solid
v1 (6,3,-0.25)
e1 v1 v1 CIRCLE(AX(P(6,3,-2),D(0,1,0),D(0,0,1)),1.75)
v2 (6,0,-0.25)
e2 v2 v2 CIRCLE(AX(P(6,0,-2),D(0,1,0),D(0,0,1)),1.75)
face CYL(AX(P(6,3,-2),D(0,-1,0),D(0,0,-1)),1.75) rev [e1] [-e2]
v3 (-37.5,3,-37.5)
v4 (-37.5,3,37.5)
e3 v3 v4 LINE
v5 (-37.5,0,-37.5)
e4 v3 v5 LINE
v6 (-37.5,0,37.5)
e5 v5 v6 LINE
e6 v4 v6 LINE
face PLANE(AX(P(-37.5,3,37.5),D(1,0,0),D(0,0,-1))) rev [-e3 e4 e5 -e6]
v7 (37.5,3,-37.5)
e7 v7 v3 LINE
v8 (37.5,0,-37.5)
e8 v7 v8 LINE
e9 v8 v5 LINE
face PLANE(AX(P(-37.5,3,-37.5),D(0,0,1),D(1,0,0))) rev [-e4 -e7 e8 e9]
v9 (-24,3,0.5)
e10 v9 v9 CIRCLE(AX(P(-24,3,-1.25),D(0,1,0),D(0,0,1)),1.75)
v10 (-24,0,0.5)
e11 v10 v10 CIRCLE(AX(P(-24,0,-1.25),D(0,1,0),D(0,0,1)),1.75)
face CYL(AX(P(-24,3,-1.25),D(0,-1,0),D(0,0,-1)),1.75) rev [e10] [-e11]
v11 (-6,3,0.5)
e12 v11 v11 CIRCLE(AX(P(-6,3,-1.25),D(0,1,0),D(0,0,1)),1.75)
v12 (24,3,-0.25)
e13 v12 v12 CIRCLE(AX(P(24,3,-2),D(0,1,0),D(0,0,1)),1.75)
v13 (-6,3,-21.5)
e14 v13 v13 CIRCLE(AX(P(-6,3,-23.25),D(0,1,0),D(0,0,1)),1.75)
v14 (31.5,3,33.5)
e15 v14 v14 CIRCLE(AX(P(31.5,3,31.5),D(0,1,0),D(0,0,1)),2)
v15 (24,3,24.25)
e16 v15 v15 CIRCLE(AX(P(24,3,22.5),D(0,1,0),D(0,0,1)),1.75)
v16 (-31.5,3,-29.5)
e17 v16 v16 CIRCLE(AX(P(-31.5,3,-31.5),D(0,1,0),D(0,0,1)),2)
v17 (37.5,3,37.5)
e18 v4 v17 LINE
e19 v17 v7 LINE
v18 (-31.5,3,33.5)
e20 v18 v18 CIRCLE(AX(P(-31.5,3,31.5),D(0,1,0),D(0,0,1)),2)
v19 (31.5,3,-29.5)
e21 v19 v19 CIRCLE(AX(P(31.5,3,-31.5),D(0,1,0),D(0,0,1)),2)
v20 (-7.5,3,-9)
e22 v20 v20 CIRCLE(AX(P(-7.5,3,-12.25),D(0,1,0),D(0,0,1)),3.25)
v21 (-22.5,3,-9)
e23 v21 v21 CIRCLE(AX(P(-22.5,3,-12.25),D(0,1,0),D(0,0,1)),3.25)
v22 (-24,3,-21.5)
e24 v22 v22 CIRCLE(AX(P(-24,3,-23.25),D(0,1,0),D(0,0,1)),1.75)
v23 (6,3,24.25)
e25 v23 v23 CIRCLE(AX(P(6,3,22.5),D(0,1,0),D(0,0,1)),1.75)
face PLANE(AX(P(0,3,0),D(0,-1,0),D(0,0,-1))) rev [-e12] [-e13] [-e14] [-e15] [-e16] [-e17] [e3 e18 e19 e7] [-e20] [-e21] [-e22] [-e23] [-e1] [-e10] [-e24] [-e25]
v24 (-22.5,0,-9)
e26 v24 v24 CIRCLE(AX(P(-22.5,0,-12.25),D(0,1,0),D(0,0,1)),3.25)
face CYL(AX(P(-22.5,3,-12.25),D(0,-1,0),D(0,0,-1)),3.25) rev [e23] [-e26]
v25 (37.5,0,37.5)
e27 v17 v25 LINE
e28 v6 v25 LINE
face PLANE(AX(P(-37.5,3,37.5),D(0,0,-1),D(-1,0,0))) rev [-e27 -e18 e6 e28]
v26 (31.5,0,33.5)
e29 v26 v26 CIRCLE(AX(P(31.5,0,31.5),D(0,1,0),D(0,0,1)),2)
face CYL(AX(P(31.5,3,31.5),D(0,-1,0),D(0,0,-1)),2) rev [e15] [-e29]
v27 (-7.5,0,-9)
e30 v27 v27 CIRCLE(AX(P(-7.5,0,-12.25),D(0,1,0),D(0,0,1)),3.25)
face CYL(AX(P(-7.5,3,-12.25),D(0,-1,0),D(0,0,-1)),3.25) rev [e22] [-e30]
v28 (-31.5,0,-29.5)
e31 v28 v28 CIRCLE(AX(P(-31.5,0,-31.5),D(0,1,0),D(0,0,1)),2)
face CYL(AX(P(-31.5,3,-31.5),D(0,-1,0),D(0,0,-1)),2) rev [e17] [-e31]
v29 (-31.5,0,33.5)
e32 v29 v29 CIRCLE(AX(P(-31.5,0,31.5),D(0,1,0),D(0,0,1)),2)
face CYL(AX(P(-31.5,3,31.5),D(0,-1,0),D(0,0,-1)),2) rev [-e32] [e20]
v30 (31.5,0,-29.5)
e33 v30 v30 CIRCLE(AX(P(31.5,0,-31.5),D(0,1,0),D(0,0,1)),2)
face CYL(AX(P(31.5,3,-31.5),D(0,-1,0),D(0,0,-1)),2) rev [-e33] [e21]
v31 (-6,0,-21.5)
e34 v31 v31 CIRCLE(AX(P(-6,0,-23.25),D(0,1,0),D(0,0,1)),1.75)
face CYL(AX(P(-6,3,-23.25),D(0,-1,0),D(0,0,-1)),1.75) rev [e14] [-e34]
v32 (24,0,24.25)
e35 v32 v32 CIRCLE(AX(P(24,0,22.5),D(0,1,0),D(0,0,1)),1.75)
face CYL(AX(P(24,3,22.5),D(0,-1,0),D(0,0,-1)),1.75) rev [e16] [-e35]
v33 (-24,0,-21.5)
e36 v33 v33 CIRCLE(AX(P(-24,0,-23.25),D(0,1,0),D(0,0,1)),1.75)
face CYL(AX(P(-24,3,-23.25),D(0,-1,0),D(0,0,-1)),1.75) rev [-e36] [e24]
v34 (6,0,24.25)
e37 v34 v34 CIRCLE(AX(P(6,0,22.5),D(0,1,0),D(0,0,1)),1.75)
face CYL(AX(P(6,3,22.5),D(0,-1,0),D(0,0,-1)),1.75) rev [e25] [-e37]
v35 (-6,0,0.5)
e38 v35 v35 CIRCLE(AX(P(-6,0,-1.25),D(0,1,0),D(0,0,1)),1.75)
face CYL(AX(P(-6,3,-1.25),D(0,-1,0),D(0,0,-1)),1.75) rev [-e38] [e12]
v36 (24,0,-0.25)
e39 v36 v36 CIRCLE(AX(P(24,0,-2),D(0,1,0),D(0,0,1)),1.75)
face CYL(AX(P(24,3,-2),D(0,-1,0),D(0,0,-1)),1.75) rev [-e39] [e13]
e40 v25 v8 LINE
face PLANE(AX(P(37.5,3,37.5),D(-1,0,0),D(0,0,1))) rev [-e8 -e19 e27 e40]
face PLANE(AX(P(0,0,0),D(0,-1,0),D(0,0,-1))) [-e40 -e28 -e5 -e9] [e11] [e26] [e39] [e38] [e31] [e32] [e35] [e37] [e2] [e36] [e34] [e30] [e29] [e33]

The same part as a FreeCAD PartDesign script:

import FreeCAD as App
import Part
import Sketcher

doc = App.newDocument("Part")
params = doc.addObject("Spreadsheet::Sheet", "Params")
for row, (alias, value) in enumerate([
    ("sketch1_diameter", "4 mm"),
    ("sketch1_diameter2", "3.5 mm"),
    ("sketch1_diameter3", "6.5 mm"),
    ("sketch1_width", "75 mm"),
    ("pad1_length", "3 mm"),
], start=1):
    params.set(f"A{row}", alias)
    params.set(f"B{row}", "=" + value)
    params.setAlias(f"B{row}", alias)

body = doc.addObject("PartDesign::Body", "Body")

sketch1 = body.newObject("Sketcher::SketchObject", "Sketch")
sketch1.AttachmentSupport = (doc.getObject("XZ_Plane"), [""])
sketch1.MapMode = "FlatFace"
sketch1.addGeometry([
    Part.LineSegment(App.Vector(-37.5, -37.5, 0), App.Vector(-37.5, 37.5, 0)),
    Part.LineSegment(App.Vector(-37.5, 37.5, 0), App.Vector(37.5, 37.5, 0)),
    Part.LineSegment(App.Vector(37.5, 37.5, 0), App.Vector(37.5, -37.5, 0)),
    Part.LineSegment(App.Vector(37.5, -37.5, 0), App.Vector(-37.5, -37.5, 0)),
    Part.Circle(App.Vector(-31.5, 31.5, 0), App.Vector(0, 0, 1), 2),
    Part.Circle(App.Vector(6, 22.5, 0), App.Vector(0, 0, 1), 1.8),
    Part.Circle(App.Vector(31.5, 31.5, 0), App.Vector(0, 0, 1), 2),
    Part.Circle(App.Vector(24, 22.5, 0), App.Vector(0, 0, 1), 1.8),
    Part.Circle(App.Vector(-24, -1.2, 0), App.Vector(0, 0, 1), 1.8),
    Part.Circle(App.Vector(-22.5, -12.2, 0), App.Vector(0, 0, 1), 3.2),
    Part.Circle(App.Vector(-6, -1.2, 0), App.Vector(0, 0, 1), 1.8),
    Part.Circle(App.Vector(-7.5, -12.2, 0), App.Vector(0, 0, 1), 3.2),
    Part.Circle(App.Vector(-24, -23.2, 0), App.Vector(0, 0, 1), 1.8),
    Part.Circle(App.Vector(-31.5, -31.5, 0), App.Vector(0, 0, 1), 2),
    Part.Circle(App.Vector(-6, -23.2, 0), App.Vector(0, 0, 1), 1.8),
    Part.Circle(App.Vector(6, -2, 0), App.Vector(0, 0, 1), 1.8),
    Part.Circle(App.Vector(24, -2, 0), App.Vector(0, 0, 1), 1.8),
    Part.Circle(App.Vector(31.5, -31.5, 0), App.Vector(0, 0, 1), 2),
], False)
sketch1.addConstraint([
    Sketcher.Constraint("Coincident", 0, 2, 1, 1),
    Sketcher.Constraint("Coincident", 1, 2, 2, 1),
    Sketcher.Constraint("Coincident", 2, 2, 3, 1),
    Sketcher.Constraint("Coincident", 3, 2, 0, 1),
    Sketcher.Constraint("Vertical", 0),
    Sketcher.Constraint("Horizontal", 1),
    Sketcher.Constraint("Vertical", 2),
    Sketcher.Constraint("Horizontal", 3),
    Sketcher.Constraint("Equal", 4, 6),
    Sketcher.Constraint("Equal", 5, 7),
    Sketcher.Constraint("Equal", 7, 8),
    Sketcher.Constraint("Equal", 8, 10),
    Sketcher.Constraint("Equal", 9, 11),
    Sketcher.Constraint("Equal", 10, 12),
    Sketcher.Constraint("Equal", 6, 13),
    Sketcher.Constraint("Equal", 12, 14),
    Sketcher.Constraint("Equal", 14, 15),
    Sketcher.Constraint("Equal", 15, 16),
    Sketcher.Constraint("Equal", 13, 17),
    Sketcher.Constraint("Symmetric", 6, 3, 13, 3, -1, 1),
    Sketcher.Constraint("Symmetric", 4, 3, 17, 3, -1, 1),
    Sketcher.Constraint("Symmetric", 0, 2, 2, 2, -1, 1),
    Sketcher.Constraint("Symmetric", 4, 3, 6, 3, -2),
    Sketcher.Constraint("Horizontal", 5, 3, 7, 3),
    Sketcher.Constraint("Horizontal", 8, 3, 10, 3),
    Sketcher.Constraint("Horizontal", 9, 3, 11, 3),
    Sketcher.Constraint("Horizontal", 12, 3, 14, 3),
    Sketcher.Constraint("Horizontal", 15, 3, 16, 3),
    Sketcher.Constraint("Vertical", 8, 3, 12, 3),
    Sketcher.Constraint("Vertical", 10, 3, 14, 3),
    Sketcher.Constraint("Vertical", 5, 3, 15, 3),
    Sketcher.Constraint("Vertical", 7, 3, 16, 3),
    Sketcher.Constraint("Equal", 3, 0),
    Sketcher.Constraint("Diameter", 4, 4.0),
    Sketcher.Constraint("Diameter", 5, 3.5),
    Sketcher.Constraint("Diameter", 9, 6.5),
    Sketcher.Constraint("DistanceX", 1, 1, 1, 2, 75.0),
    Sketcher.Constraint("DistanceX", -1, 1, 5, 3, 6.0),
    Sketcher.Constraint("DistanceX", -1, 1, 7, 3, 24.0),
    Sketcher.Constraint("DistanceX", 8, 3, -1, 1, 24.0),
    Sketcher.Constraint("DistanceX", 10, 3, -1, 1, 6.0),
    Sketcher.Constraint("DistanceY", 15, 3, -1, 1, 2.0),
    Sketcher.Constraint("DistanceY", 5, 3, 4, 3, 9.0),
    Sketcher.Constraint("DistanceX", 4, 3, 6, 3, 63.0),
    Sketcher.Constraint("DistanceY", 9, 3, 8, 3, 11.0),
    Sketcher.Constraint("DistanceX", 4, 3, 9, 3, 9.0),
    Sketcher.Constraint("DistanceX", 9, 3, 11, 3, 15.0),
    Sketcher.Constraint("DistanceY", 12, 3, 9, 3, 11.0),
    Sketcher.Constraint("DistanceY", 4, 3, 0, 2, 6.0),
    Sketcher.Constraint("DistanceY", 8, 3, -1, 1, 1.25),
])
sketch1.setExpression("Constraints[33]", "Params.sketch1_diameter")
sketch1.setExpression("Constraints[34]", "Params.sketch1_diameter2")
sketch1.setExpression("Constraints[35]", "Params.sketch1_diameter3")
sketch1.setExpression("Constraints[36]", "Params.sketch1_width")
pad1 = body.newObject("PartDesign::Pad", "Pad")
pad1.Profile = sketch1
pad1.setExpression("Length", "Params.pad1_length")
pad1.Reversed = True

doc.recompute()
